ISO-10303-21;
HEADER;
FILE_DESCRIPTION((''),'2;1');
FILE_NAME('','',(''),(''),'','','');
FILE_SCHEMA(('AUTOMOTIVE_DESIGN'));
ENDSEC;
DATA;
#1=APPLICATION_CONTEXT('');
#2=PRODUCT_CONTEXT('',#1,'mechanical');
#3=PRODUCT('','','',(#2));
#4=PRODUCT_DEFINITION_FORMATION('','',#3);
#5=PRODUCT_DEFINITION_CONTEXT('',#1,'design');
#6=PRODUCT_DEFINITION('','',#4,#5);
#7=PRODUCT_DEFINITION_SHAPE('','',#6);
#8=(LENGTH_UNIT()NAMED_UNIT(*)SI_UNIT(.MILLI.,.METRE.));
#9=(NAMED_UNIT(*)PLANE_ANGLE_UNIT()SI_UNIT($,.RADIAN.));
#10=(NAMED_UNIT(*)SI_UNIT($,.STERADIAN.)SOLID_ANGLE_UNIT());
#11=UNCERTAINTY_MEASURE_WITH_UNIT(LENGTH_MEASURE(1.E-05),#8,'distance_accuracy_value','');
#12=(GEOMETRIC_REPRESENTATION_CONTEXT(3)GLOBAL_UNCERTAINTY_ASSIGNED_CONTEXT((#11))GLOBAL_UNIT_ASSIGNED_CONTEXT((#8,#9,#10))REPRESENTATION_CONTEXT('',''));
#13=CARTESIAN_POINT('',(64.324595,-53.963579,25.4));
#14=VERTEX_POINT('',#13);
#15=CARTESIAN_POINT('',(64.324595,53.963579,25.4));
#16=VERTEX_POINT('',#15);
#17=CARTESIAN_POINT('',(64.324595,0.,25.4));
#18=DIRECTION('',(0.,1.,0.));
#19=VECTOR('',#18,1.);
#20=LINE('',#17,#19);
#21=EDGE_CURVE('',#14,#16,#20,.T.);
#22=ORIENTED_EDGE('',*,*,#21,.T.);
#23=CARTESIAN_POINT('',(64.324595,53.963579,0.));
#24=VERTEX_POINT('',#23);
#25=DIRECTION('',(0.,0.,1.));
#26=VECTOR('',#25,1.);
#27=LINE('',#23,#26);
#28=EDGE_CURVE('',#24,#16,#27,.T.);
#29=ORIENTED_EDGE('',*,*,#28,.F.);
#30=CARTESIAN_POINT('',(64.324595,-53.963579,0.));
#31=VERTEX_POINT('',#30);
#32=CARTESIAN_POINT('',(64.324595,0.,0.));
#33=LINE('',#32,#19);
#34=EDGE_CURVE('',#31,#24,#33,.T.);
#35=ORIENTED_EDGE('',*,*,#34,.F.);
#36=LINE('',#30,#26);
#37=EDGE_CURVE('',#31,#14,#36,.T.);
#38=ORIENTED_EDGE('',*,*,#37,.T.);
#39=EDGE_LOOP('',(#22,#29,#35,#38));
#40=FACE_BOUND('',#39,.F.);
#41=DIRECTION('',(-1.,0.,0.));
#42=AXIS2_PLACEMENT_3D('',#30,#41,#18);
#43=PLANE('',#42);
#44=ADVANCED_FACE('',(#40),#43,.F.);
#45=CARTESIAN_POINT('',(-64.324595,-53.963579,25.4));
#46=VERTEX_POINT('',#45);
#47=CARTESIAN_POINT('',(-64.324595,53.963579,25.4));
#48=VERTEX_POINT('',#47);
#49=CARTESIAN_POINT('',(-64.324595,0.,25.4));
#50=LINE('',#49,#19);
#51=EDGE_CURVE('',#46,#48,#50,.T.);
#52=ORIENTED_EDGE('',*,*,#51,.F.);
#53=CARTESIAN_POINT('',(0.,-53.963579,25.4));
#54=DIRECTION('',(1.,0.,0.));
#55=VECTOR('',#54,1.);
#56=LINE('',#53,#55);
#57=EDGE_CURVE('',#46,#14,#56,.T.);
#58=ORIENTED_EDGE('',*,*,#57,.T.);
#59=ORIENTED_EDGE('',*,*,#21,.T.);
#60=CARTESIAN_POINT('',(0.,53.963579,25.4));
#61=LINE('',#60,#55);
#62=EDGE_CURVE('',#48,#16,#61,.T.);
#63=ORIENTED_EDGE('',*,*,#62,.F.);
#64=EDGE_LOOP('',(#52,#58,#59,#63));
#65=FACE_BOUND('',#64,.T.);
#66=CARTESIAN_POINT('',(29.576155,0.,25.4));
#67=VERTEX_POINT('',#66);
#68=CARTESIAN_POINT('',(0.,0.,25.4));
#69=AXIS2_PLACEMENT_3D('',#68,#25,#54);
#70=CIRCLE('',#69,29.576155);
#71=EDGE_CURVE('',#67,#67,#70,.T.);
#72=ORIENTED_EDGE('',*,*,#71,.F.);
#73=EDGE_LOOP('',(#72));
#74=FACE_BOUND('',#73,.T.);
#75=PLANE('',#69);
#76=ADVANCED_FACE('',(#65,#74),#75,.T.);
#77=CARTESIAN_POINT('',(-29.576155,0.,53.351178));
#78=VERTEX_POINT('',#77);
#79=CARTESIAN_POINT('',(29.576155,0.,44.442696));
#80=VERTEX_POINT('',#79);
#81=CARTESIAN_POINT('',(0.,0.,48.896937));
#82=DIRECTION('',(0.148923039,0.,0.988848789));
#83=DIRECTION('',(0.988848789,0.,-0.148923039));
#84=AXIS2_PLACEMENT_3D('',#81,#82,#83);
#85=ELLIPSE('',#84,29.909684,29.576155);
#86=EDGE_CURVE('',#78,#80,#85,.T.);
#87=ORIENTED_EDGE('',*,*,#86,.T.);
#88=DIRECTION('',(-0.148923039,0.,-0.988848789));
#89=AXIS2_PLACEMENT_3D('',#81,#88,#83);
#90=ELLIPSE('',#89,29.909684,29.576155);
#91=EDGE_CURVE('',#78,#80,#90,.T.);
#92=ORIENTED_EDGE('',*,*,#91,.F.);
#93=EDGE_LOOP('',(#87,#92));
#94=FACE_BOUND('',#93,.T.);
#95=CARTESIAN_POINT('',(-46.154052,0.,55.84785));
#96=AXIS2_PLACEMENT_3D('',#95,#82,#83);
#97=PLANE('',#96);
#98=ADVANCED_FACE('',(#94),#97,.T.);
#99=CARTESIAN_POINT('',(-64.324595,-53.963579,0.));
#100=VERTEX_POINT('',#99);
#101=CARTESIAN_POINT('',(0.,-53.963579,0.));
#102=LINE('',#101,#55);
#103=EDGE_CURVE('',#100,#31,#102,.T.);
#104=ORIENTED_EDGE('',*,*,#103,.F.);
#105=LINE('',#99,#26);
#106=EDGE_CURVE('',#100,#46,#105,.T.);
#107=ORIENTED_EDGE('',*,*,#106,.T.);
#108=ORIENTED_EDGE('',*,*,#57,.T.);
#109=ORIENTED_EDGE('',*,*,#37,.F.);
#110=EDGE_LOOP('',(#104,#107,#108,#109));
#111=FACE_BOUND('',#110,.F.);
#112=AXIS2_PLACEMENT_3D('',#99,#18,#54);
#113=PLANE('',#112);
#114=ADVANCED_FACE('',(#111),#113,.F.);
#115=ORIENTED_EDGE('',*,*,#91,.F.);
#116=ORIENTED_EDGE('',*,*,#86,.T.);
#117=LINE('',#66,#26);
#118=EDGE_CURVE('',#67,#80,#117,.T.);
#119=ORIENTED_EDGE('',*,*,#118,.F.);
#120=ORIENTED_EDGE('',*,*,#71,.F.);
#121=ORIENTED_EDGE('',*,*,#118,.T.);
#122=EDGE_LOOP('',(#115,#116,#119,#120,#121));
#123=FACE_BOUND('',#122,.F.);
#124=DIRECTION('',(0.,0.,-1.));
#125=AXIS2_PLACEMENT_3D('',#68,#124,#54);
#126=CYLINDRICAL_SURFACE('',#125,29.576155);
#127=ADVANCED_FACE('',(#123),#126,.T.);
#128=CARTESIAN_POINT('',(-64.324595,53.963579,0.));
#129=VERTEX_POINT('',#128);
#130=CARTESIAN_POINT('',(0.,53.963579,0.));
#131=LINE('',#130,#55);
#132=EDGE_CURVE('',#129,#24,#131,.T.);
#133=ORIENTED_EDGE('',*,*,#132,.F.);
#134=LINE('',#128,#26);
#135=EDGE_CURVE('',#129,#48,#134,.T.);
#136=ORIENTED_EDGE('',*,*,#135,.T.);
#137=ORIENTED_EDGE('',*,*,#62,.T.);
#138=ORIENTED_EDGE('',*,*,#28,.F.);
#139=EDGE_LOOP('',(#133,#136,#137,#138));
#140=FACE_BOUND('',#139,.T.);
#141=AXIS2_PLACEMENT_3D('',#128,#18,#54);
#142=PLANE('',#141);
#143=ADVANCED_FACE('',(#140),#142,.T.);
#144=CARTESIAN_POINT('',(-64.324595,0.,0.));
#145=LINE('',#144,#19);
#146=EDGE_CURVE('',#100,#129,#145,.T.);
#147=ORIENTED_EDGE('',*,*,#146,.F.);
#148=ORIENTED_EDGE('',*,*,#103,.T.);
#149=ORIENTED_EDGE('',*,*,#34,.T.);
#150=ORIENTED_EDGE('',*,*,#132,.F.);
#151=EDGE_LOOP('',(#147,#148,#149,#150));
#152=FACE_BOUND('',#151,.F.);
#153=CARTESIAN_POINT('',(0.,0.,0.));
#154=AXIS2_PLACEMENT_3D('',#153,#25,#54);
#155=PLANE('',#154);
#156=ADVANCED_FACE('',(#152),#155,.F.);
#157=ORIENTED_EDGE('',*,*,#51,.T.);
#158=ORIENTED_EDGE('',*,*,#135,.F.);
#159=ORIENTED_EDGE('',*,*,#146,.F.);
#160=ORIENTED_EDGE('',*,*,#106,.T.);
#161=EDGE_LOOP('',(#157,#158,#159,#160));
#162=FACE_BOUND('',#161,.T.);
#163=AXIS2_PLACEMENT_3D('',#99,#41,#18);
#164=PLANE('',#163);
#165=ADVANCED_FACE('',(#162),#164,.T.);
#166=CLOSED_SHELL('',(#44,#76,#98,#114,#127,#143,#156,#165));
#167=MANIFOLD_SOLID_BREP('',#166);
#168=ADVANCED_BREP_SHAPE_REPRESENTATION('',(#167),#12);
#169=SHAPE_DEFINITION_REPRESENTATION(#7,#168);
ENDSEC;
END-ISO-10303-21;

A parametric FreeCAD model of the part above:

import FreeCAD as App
import Part
import Sketcher
Q = App.Units.Quantity

doc = App.newDocument("Part")
body = doc.addObject("PartDesign::Body", "Body")

sketch1 = body.newObject("Sketcher::SketchObject", "Sketch")
sketch1.AttachmentSupport = (doc.getObject("XY_Plane"), [""])
sketch1.MapMode = "FlatFace"
sketch1.addGeometry([
    Part.LineSegment(App.Vector(-64, 54, 0), App.Vector(-64, -54, 0)),
    Part.LineSegment(App.Vector(-64, -54, 0), App.Vector(64, -54, 0)),
    Part.LineSegment(App.Vector(64, -54, 0), App.Vector(64, 54, 0)),
    Part.LineSegment(App.Vector(64, 54, 0), App.Vector(-64, 54, 0)),
], False)
sketch1.addConstraint([
    Sketcher.Constraint("Coincident", 0, 2, 1, 1),
    Sketcher.Constraint("Coincident", 1, 2, 2, 1),
    Sketcher.Constraint("Coincident", 2, 2, 3, 1),
    Sketcher.Constraint("Coincident", 3, 2, 0, 1),
    Sketcher.Constraint("Vertical", 0),
    Sketcher.Constraint("Horizontal", 1),
    Sketcher.Constraint("Vertical", 2),
    Sketcher.Constraint("Horizontal", 3),
    Sketcher.Constraint("Symmetric", 0, 2, 2, 2, -1, 1),
    Sketcher.Constraint("DistanceX", 1, 1, 1, 2, Q("128.64919 mm")),
    Sketcher.Constraint("DistanceY", 0, 2, 0, 1, Q("107.927158 mm")),
])
pad1 = body.newObject("PartDesign::Pad", "Pad")
pad1.Profile = sketch1
pad1.Length = Q("1 in")

sketch2 = body.newObject("Sketcher::SketchObject", "Sketch001")
sketch2.AttachmentSupport = (doc.getObject("XY_Plane"), [""])
sketch2.MapMode = "FlatFace"
sketch2.AttachmentOffset = App.Placement(App.Vector(0, 0, 1 * 25.4), App.Rotation())
sketch2.addGeometry(Part.Circle(App.Vector(0, 0, 0), App.Vector(0, 0, 1), 30), False)
sketch2.addConstraint([
    Sketcher.Constraint("Coincident", 0, 3, -1, 1),
    Sketcher.Constraint("Diameter", 0, Q("59.15231 mm")),
])
pad2 = body.newObject("PartDesign::Pad", "Pad001")
pad2.Profile = sketch2
pad2.Length = Q("1.43 in")

sketch3 = body.newObject("Sketcher::SketchObject", "Sketch002")
sketch3.AttachmentSupport = (doc.getObject("XZ_Plane"), [""])
sketch3.MapMode = "FlatFace"
sketch3.addGeometry([
    Part.LineSegment(App.Vector(-54, 60, 0), App.Vector(-46, 56, 0)),
    Part.LineSegment(App.Vector(-46, 56, 0), App.Vector(50, 41, 0)),
    Part.LineSegment(App.Vector(50, 41, 0), App.Vector(30, 73, 0)),
    Part.LineSegment(App.Vector(30, 73, 0), App.Vector(-54, 60, 0)),
], False)
sketch3.addConstraint([
    Sketcher.Constraint("Coincident", 0, 2, 1, 1),
    Sketcher.Constraint("Coincident", 1, 2, 2, 1),
    Sketcher.Constraint("Coincident", 2, 2, 3, 1),
    Sketcher.Constraint("Coincident", 3, 2, 0, 1),
    Sketcher.Constraint("Distance", 1, Q("97.153248 mm")),
    Sketcher.Constraint("Distance", 2, Q("36.930318 mm")),
    Sketcher.Constraint("DistanceY", -1, 1, 0, 2, Q("55.84785 mm")),
    Sketcher.Constraint("DistanceX", -1, 1, 1, 2, Q("49.91582 mm")),
    Sketcher.Constraint("DistanceX", -1, 1, 2, 2, Q("30.238859 mm")),
    Sketcher.Constraint("DistanceX", 3, 2, -1, 1, Q("54.256331 mm")),
    Sketcher.Constraint("DistanceX", 0, 2, 2, 2, Q("76.392911 mm")),
    Sketcher.Constraint("DistanceY", 0, 2, 3, 2, Q("4.629872 mm")),
])
pocket1 = body.newObject("PartDesign::Pocket", "Pocket")
pocket1.Profile = sketch3
pocket1.Length = Q("1.5 in")

sketch4 = body.newObject("Sketcher::SketchObject", "Sketch003")
sketch4.AttachmentSupport = (doc.getObject("XZ_Plane"), [""])
sketch4.MapMode = "FlatFace"
sketch4.addGeometry([
    Part.LineSegment(App.Vector(-54, 60, 0), App.Vector(-46, 56, 0)),
    Part.LineSegment(App.Vector(-46, 56, 0), App.Vector(50, 41, 0)),
    Part.LineSegment(App.Vector(50, 41, 0), App.Vector(30, 73, 0)),
    Part.LineSegment(App.Vector(30, 73, 0), App.Vector(-54, 60, 0)),
], False)
sketch4.addConstraint([
    Sketcher.Constraint("Coincident", 0, 2, 1, 1),
    Sketcher.Constraint("Coincident", 1, 2, 2, 1),
    Sketcher.Constraint("Coincident", 2, 2, 3, 1),
    Sketcher.Constraint("Coincident", 3, 2, 0, 1),
    Sketcher.Constraint("Distance", 1, Q("97.153248 mm")),
    Sketcher.Constraint("Distance", 2, Q("36.930318 mm")),
    Sketcher.Constraint("DistanceY", -1, 1, 0, 2, Q("55.84785 mm")),
    Sketcher.Constraint("DistanceX", -1, 1, 1, 2, Q("49.91582 mm")),
    Sketcher.Constraint("DistanceX", -1, 1, 2, 2, Q("30.238859 mm")),
    Sketcher.Constraint("DistanceX", 3, 2, -1, 1, Q("54.256331 mm")),
    Sketcher.Constraint("DistanceX", 0, 2, 2, 2, Q("76.392911 mm")),
    Sketcher.Constraint("DistanceY", 0, 2, 3, 2, Q("4.629872 mm")),
])
pocket2 = body.newObject("PartDesign::Pocket", "Pocket001")
pocket2.Profile = sketch4
pocket2.Length = Q("2.48 in")
pocket2.Reversed = True

doc.recompute()
